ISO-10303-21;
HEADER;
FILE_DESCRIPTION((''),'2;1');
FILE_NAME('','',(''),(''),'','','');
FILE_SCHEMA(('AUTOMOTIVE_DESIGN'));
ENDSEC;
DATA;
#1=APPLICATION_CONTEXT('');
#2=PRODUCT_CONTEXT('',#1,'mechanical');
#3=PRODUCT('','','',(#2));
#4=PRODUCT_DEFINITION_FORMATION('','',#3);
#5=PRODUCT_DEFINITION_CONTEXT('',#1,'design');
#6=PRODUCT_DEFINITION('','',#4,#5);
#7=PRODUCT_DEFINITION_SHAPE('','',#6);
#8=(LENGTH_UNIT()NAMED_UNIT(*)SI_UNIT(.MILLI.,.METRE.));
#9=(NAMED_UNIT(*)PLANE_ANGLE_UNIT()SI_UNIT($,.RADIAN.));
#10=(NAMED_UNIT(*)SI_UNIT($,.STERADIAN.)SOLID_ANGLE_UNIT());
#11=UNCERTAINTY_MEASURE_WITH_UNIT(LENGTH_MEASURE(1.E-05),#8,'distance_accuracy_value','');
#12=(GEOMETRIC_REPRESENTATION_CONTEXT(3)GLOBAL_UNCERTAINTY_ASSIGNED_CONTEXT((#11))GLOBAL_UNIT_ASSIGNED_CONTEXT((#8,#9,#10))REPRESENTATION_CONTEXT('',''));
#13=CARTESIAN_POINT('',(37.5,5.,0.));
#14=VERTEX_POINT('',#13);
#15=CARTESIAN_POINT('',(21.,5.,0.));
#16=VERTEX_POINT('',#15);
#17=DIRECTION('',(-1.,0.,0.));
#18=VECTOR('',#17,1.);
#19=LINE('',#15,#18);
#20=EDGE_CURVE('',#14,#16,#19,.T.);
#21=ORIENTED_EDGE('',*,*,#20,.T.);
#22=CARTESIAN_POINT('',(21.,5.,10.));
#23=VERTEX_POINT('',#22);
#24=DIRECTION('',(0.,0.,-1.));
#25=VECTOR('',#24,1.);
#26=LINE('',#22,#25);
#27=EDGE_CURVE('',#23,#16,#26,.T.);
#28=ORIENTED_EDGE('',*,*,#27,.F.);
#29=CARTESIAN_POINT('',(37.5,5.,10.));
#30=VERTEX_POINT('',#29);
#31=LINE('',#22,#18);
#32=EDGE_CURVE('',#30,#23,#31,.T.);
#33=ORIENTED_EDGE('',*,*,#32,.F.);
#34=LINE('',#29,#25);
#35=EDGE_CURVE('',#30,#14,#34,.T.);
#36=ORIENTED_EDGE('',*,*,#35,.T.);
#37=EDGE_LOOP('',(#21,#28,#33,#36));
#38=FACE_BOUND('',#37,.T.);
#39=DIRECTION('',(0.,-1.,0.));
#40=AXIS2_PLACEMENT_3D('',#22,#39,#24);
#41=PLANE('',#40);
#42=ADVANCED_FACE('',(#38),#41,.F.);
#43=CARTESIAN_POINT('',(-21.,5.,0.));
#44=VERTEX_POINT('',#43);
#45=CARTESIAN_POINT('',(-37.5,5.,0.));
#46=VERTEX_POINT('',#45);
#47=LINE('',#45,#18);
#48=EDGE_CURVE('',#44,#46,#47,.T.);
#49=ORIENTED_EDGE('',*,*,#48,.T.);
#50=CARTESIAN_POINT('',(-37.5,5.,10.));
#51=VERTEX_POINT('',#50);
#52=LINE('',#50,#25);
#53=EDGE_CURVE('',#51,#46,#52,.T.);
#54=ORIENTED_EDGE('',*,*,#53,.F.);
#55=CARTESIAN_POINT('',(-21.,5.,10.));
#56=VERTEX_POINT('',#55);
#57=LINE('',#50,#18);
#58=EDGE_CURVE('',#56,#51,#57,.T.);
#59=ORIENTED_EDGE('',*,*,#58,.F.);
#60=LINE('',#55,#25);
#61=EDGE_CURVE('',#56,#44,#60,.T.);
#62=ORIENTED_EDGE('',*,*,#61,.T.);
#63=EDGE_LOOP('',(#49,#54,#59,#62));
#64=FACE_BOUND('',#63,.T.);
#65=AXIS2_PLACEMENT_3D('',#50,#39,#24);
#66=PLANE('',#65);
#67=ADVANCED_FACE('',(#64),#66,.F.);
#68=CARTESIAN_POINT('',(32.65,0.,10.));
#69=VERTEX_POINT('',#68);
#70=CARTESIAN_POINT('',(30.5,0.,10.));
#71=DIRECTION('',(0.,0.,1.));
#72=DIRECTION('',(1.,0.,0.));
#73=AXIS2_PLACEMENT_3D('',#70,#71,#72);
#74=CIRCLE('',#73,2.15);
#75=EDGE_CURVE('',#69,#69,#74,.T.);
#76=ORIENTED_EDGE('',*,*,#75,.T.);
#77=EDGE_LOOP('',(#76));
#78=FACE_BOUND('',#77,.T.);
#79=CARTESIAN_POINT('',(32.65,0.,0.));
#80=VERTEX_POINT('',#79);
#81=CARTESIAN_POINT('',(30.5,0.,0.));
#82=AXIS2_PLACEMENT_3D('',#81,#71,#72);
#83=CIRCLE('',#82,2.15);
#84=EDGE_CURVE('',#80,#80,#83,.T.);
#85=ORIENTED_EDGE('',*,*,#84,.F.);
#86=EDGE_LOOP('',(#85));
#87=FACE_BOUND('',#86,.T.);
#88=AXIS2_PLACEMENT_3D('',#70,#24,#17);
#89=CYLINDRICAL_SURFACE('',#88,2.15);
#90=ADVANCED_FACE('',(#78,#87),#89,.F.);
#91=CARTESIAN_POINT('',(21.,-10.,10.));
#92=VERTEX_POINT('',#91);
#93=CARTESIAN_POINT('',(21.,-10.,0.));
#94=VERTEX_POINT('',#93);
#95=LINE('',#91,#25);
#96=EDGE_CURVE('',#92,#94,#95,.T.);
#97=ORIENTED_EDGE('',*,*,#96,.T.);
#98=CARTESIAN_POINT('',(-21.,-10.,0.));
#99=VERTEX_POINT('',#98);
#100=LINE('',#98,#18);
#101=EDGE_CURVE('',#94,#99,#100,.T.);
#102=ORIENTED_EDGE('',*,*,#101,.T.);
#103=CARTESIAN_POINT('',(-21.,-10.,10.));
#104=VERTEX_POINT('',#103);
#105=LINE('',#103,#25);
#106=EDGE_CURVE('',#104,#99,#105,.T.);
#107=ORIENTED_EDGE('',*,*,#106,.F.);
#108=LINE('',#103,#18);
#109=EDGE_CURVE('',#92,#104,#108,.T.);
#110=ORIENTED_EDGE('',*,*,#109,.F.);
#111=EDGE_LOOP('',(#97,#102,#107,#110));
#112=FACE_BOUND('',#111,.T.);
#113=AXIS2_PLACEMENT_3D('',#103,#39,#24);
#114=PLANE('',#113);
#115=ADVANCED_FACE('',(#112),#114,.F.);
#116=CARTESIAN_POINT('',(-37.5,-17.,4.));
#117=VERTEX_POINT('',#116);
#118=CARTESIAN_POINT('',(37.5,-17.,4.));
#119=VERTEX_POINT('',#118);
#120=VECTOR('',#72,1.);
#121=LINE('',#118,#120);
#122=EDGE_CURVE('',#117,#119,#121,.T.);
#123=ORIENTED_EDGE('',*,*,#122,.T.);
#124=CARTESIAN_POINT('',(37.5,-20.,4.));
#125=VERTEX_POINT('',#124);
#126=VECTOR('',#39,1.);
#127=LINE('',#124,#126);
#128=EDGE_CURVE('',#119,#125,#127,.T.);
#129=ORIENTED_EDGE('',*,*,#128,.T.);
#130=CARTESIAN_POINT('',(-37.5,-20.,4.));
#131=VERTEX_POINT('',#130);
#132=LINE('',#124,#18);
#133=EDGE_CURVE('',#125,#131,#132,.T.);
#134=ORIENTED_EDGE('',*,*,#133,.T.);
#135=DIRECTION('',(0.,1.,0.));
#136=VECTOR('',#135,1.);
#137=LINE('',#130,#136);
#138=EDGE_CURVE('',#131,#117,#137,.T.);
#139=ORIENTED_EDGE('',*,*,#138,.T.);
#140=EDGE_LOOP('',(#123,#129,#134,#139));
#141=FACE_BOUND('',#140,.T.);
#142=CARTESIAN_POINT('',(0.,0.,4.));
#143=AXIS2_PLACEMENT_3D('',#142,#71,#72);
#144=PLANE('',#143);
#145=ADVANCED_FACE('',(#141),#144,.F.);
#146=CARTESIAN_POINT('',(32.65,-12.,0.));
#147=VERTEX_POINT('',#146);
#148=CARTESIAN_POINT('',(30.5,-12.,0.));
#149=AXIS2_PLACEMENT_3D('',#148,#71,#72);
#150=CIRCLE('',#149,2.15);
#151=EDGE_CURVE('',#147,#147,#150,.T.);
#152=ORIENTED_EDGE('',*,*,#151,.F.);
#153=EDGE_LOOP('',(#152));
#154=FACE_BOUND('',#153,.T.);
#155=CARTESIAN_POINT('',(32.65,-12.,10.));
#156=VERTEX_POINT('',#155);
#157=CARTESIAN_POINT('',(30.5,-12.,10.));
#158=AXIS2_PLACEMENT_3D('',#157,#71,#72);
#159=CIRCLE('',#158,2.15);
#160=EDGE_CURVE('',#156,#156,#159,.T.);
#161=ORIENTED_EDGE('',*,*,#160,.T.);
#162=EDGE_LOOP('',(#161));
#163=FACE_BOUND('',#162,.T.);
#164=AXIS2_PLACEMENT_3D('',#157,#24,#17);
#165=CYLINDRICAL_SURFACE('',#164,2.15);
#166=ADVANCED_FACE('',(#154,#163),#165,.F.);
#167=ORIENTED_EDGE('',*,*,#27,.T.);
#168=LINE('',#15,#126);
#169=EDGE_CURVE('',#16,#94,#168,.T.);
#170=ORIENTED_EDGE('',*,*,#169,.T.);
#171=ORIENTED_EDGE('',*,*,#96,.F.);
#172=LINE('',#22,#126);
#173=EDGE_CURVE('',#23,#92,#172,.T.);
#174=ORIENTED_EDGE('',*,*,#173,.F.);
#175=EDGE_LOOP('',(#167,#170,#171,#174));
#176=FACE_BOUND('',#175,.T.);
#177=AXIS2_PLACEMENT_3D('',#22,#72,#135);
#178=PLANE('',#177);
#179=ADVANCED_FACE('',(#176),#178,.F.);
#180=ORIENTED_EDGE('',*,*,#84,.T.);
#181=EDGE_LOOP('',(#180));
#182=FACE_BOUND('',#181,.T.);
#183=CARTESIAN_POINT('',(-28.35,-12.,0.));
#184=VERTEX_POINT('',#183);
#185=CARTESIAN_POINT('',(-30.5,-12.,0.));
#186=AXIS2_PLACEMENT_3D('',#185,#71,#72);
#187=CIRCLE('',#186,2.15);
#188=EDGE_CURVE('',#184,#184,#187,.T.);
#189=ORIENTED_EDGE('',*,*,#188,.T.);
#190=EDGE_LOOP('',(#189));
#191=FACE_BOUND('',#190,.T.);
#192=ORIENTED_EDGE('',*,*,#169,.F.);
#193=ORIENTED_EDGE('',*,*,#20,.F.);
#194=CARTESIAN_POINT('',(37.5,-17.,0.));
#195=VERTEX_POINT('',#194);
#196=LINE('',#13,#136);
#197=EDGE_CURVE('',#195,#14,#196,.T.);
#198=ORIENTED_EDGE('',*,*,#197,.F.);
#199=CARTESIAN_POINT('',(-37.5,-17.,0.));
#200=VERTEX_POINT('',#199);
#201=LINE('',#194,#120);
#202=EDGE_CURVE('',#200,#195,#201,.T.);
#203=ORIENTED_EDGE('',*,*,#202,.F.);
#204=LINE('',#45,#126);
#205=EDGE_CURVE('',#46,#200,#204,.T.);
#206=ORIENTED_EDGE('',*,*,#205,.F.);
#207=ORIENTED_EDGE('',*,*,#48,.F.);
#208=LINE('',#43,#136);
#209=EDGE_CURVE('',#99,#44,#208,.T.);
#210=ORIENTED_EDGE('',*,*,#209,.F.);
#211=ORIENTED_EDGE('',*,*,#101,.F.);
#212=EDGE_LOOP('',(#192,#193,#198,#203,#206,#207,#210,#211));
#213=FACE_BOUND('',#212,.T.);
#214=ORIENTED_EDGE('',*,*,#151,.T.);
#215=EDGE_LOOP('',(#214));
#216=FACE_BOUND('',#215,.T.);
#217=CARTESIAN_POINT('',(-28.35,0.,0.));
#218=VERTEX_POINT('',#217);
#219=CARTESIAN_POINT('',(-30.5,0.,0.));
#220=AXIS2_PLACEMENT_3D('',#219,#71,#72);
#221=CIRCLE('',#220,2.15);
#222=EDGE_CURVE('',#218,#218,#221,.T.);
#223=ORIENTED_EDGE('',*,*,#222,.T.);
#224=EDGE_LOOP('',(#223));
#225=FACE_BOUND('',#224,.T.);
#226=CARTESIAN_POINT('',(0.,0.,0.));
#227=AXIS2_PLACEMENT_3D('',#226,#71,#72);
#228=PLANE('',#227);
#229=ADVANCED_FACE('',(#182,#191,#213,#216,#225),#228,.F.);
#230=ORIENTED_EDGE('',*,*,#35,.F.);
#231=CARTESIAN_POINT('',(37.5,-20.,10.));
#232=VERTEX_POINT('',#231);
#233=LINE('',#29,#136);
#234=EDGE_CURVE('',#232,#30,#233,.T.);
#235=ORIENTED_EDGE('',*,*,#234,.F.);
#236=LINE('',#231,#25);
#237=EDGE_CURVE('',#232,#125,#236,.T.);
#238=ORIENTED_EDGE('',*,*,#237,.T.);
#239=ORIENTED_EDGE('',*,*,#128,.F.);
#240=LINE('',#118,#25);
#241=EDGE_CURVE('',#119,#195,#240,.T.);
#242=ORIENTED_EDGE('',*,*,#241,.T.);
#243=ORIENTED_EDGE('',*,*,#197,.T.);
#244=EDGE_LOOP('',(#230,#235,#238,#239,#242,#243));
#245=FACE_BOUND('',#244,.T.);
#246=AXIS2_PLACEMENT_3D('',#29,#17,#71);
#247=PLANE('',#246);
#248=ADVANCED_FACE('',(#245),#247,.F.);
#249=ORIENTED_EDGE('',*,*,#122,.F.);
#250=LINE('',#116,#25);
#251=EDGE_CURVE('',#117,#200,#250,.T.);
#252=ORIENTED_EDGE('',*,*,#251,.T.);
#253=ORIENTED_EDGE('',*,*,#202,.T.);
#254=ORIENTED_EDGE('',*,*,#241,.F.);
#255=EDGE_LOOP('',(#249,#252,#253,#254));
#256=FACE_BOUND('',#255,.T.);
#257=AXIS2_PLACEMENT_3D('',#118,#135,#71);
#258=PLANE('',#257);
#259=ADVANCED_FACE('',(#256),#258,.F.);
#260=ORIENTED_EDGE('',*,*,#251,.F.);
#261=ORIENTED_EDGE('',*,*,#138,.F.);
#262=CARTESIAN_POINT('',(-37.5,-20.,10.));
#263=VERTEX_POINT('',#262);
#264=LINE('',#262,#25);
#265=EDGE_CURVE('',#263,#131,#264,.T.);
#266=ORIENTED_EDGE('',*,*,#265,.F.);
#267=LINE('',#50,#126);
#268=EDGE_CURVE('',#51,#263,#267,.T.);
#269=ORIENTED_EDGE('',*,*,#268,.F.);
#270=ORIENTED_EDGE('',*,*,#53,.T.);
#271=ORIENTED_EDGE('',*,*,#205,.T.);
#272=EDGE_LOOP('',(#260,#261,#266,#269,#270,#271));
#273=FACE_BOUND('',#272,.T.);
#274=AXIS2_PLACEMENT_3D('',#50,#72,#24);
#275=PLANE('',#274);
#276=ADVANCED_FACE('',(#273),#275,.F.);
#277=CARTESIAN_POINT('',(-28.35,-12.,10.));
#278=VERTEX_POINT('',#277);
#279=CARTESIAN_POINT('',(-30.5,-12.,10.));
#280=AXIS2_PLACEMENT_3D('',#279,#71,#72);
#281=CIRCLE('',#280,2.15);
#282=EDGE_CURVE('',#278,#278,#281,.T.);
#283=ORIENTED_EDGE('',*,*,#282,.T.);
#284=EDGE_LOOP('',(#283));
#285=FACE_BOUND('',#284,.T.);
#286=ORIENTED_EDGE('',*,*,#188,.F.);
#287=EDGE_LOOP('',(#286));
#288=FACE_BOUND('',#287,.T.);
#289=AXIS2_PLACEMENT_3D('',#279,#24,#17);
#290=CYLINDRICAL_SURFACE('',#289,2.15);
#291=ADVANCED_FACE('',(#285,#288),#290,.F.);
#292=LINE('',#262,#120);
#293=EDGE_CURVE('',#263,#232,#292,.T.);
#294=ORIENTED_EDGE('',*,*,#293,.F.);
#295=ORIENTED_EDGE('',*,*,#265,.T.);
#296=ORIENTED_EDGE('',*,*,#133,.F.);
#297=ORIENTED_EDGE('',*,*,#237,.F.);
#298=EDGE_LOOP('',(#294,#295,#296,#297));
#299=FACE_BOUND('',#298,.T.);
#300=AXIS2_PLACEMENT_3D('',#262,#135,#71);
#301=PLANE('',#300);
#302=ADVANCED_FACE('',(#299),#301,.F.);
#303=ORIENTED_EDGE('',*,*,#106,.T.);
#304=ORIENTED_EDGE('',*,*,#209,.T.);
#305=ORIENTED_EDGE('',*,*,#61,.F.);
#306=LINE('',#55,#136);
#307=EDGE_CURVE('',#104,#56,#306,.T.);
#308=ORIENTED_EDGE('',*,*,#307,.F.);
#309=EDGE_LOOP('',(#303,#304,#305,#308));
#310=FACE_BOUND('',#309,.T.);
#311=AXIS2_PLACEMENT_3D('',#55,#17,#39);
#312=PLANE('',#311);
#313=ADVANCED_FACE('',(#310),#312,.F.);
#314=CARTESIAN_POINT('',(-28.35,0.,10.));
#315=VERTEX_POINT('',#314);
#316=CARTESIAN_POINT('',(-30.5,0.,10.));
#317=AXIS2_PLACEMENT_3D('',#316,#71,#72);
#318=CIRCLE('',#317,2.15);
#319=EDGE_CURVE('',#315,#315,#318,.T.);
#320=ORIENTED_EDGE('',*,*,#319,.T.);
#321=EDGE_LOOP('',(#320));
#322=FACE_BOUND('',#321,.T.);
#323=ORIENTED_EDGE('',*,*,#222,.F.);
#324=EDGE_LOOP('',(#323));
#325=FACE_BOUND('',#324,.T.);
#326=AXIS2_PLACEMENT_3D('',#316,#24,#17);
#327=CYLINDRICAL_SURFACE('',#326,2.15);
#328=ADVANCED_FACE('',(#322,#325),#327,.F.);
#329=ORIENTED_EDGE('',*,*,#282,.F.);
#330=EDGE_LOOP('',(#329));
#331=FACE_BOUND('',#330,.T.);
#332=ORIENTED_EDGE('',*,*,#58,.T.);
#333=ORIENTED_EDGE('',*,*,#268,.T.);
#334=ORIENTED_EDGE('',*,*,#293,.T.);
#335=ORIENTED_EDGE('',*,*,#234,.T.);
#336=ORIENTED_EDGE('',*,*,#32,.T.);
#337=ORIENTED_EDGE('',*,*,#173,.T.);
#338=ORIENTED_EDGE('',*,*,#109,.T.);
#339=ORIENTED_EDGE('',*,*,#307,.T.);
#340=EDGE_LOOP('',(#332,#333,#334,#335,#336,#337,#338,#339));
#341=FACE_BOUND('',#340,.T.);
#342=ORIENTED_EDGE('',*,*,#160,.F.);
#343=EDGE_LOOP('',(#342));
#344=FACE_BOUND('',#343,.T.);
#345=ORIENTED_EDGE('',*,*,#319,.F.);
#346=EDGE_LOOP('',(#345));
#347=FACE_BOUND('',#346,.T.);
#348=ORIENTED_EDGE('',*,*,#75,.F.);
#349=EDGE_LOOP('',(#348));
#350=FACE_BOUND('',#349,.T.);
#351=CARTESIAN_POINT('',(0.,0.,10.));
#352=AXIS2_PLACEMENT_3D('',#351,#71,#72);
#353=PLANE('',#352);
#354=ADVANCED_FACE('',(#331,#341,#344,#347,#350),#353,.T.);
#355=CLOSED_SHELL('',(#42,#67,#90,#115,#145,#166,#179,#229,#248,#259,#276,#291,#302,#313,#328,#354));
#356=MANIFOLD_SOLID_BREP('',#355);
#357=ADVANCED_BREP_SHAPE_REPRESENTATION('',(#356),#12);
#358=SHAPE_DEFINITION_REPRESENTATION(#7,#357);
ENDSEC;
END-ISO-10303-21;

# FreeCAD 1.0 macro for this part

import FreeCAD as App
import Part
import Sketcher


def add_polygon(sketch, points):
    """Adds a closed chain of lines whose ends are joined by coincident constraints."""
    first, n = sketch.GeometryCount, len(points)
    for a, b in zip(points, points[1:] + points[:1]):
        sketch.addGeometry(Part.LineSegment(App.Vector(*a, 0), App.Vector(*b, 0)), False)
    for i in range(n):
        sketch.addConstraint(Sketcher.Constraint("Coincident", first + i, 2, first + (i + 1) % n, 1))

doc = App.newDocument("Part")
body = doc.addObject("PartDesign::Body", "Body")

# Sketch on XY plane
sketch1 = doc.addObject("Sketcher::SketchObject", "Sketch")
body.addObject(sketch1)
sketch1.AttachmentSupport = (doc.XY_Plane, [""])
sketch1.MapMode = "FlatFace"
add_polygon(sketch1, [(37.5, 5), (21, 5), (21, -10), (-21, -10), (-21, 5), (-37.5, 5), (-37.5, -20), (37.5, -20)])  # lines 0-7
sketch1.addGeometry(Part.Circle(App.Vector(30.5, -12, 0), App.Vector(0, 0, 1), 2.1), False)  # 8
sketch1.addGeometry(Part.Circle(App.Vector(-30.5, -12, 0), App.Vector(0, 0, 1), 2.1), False)  # 9
sketch1.addGeometry(Part.Circle(App.Vector(30.5, 0, 0), App.Vector(0, 0, 1), 2.1), False)  # 10
sketch1.addGeometry(Part.Circle(App.Vector(-30.5, 0, 0), App.Vector(0, 0, 1), 2.1), False)  # 11
sketch1.addConstraint(Sketcher.Constraint("Horizontal", 0))
sketch1.addConstraint(Sketcher.Constraint("Vertical", 1))
sketch1.addConstraint(Sketcher.Constraint("Horizontal", 2))
sketch1.addConstraint(Sketcher.Constraint("Vertical", 3))
sketch1.addConstraint(Sketcher.Constraint("Horizontal", 4))
sketch1.addConstraint(Sketcher.Constraint("Vertical", 5))
sketch1.addConstraint(Sketcher.Constraint("Horizontal", 6))
sketch1.addConstraint(Sketcher.Constraint("Vertical", 7))
sketch1.addConstraint(Sketcher.Constraint("Equal", 8, 9))
sketch1.addConstraint(Sketcher.Constraint("Equal", 9, 10))
sketch1.addConstraint(Sketcher.Constraint("Equal", 10, 11))
sketch1.addConstraint(Sketcher.Constraint("Symmetric", 10, 3, 11, 3, -1, 1))
sketch1.addConstraint(Sketcher.Constraint("Symmetric", 8, 3, 9, 3, -2))
sketch1.addConstraint(Sketcher.Constraint("Symmetric", 0, 2, 3, 2, -2))
sketch1.addConstraint(Sketcher.Constraint("PointOnObject", 10, 3, -1))
sketch1.addConstraint(Sketcher.Constraint("Vertical", 8, 3, 10, 3))
sketch1.addConstraint(Sketcher.Constraint("Equal", 0, 4))
sketch1.addConstraint(Sketcher.Constraint("Diameter", 8, 4.3))
sketch1.addConstraint(Sketcher.Constraint("DistanceX", 2, 2, 2, 1, 42.0))
sketch1.addConstraint(Sketcher.Constraint("DistanceX", 6, 1, 6, 2, 75.0))
sketch1.addConstraint(Sketcher.Constraint("DistanceY", 1, 2, 1, 1, 15.0))
sketch1.addConstraint(Sketcher.Constraint("DistanceY", 5, 2, 5, 1, 25.0))
sketch1.addConstraint(Sketcher.Constraint("DistanceY", 8, 3, -1, 1, 12.0))
sketch1.addConstraint(Sketcher.Constraint("DistanceY", -1, 1, 0, 2, 5.0))
sketch1.addConstraint(Sketcher.Constraint("DistanceX", 9, 3, 8, 3, 61.0))
pad1 = doc.addObject("PartDesign::Pad", "Pad")
body.addObject(pad1)
pad1.Profile = sketch1
pad1.Length = 10

# Sketch on XY plane
sketch2 = doc.addObject("Sketcher::SketchObject", "Sketch001")
body.addObject(sketch2)
sketch2.AttachmentSupport = (doc.XY_Plane, [""])
sketch2.MapMode = "FlatFace"
add_polygon(sketch2, [(37.5, -17), (37.5, -20), (-37.5, -20), (-37.5, -17)])  # lines 0-3
sketch2.addConstraint(Sketcher.Constraint("Vertical", 0))
sketch2.addConstraint(Sketcher.Constraint("Horizontal", 1))
sketch2.addConstraint(Sketcher.Constraint("Vertical", 2))
sketch2.addConstraint(Sketcher.Constraint("Horizontal", 3))
sketch2.addConstraint(Sketcher.Constraint("DistanceX", 1, 2, 1, 1, 75.0))
sketch2.addConstraint(Sketcher.Constraint("DistanceY", 0, 2, 0, 1, 3.0))
sketch2.addConstraint(Sketcher.Constraint("DistanceY", 0, 2, -1, 1, 20.0))
sketch2.addConstraint(Sketcher.Constraint("DistanceX", -1, 1, 0, 2, 37.5))
pocket1 = doc.addObject("PartDesign::Pocket", "Pocket")
body.addObject(pocket1)
pocket1.Profile = sketch2
pocket1.Length = 4
pocket1.Reversed = True

doc.recompute()
